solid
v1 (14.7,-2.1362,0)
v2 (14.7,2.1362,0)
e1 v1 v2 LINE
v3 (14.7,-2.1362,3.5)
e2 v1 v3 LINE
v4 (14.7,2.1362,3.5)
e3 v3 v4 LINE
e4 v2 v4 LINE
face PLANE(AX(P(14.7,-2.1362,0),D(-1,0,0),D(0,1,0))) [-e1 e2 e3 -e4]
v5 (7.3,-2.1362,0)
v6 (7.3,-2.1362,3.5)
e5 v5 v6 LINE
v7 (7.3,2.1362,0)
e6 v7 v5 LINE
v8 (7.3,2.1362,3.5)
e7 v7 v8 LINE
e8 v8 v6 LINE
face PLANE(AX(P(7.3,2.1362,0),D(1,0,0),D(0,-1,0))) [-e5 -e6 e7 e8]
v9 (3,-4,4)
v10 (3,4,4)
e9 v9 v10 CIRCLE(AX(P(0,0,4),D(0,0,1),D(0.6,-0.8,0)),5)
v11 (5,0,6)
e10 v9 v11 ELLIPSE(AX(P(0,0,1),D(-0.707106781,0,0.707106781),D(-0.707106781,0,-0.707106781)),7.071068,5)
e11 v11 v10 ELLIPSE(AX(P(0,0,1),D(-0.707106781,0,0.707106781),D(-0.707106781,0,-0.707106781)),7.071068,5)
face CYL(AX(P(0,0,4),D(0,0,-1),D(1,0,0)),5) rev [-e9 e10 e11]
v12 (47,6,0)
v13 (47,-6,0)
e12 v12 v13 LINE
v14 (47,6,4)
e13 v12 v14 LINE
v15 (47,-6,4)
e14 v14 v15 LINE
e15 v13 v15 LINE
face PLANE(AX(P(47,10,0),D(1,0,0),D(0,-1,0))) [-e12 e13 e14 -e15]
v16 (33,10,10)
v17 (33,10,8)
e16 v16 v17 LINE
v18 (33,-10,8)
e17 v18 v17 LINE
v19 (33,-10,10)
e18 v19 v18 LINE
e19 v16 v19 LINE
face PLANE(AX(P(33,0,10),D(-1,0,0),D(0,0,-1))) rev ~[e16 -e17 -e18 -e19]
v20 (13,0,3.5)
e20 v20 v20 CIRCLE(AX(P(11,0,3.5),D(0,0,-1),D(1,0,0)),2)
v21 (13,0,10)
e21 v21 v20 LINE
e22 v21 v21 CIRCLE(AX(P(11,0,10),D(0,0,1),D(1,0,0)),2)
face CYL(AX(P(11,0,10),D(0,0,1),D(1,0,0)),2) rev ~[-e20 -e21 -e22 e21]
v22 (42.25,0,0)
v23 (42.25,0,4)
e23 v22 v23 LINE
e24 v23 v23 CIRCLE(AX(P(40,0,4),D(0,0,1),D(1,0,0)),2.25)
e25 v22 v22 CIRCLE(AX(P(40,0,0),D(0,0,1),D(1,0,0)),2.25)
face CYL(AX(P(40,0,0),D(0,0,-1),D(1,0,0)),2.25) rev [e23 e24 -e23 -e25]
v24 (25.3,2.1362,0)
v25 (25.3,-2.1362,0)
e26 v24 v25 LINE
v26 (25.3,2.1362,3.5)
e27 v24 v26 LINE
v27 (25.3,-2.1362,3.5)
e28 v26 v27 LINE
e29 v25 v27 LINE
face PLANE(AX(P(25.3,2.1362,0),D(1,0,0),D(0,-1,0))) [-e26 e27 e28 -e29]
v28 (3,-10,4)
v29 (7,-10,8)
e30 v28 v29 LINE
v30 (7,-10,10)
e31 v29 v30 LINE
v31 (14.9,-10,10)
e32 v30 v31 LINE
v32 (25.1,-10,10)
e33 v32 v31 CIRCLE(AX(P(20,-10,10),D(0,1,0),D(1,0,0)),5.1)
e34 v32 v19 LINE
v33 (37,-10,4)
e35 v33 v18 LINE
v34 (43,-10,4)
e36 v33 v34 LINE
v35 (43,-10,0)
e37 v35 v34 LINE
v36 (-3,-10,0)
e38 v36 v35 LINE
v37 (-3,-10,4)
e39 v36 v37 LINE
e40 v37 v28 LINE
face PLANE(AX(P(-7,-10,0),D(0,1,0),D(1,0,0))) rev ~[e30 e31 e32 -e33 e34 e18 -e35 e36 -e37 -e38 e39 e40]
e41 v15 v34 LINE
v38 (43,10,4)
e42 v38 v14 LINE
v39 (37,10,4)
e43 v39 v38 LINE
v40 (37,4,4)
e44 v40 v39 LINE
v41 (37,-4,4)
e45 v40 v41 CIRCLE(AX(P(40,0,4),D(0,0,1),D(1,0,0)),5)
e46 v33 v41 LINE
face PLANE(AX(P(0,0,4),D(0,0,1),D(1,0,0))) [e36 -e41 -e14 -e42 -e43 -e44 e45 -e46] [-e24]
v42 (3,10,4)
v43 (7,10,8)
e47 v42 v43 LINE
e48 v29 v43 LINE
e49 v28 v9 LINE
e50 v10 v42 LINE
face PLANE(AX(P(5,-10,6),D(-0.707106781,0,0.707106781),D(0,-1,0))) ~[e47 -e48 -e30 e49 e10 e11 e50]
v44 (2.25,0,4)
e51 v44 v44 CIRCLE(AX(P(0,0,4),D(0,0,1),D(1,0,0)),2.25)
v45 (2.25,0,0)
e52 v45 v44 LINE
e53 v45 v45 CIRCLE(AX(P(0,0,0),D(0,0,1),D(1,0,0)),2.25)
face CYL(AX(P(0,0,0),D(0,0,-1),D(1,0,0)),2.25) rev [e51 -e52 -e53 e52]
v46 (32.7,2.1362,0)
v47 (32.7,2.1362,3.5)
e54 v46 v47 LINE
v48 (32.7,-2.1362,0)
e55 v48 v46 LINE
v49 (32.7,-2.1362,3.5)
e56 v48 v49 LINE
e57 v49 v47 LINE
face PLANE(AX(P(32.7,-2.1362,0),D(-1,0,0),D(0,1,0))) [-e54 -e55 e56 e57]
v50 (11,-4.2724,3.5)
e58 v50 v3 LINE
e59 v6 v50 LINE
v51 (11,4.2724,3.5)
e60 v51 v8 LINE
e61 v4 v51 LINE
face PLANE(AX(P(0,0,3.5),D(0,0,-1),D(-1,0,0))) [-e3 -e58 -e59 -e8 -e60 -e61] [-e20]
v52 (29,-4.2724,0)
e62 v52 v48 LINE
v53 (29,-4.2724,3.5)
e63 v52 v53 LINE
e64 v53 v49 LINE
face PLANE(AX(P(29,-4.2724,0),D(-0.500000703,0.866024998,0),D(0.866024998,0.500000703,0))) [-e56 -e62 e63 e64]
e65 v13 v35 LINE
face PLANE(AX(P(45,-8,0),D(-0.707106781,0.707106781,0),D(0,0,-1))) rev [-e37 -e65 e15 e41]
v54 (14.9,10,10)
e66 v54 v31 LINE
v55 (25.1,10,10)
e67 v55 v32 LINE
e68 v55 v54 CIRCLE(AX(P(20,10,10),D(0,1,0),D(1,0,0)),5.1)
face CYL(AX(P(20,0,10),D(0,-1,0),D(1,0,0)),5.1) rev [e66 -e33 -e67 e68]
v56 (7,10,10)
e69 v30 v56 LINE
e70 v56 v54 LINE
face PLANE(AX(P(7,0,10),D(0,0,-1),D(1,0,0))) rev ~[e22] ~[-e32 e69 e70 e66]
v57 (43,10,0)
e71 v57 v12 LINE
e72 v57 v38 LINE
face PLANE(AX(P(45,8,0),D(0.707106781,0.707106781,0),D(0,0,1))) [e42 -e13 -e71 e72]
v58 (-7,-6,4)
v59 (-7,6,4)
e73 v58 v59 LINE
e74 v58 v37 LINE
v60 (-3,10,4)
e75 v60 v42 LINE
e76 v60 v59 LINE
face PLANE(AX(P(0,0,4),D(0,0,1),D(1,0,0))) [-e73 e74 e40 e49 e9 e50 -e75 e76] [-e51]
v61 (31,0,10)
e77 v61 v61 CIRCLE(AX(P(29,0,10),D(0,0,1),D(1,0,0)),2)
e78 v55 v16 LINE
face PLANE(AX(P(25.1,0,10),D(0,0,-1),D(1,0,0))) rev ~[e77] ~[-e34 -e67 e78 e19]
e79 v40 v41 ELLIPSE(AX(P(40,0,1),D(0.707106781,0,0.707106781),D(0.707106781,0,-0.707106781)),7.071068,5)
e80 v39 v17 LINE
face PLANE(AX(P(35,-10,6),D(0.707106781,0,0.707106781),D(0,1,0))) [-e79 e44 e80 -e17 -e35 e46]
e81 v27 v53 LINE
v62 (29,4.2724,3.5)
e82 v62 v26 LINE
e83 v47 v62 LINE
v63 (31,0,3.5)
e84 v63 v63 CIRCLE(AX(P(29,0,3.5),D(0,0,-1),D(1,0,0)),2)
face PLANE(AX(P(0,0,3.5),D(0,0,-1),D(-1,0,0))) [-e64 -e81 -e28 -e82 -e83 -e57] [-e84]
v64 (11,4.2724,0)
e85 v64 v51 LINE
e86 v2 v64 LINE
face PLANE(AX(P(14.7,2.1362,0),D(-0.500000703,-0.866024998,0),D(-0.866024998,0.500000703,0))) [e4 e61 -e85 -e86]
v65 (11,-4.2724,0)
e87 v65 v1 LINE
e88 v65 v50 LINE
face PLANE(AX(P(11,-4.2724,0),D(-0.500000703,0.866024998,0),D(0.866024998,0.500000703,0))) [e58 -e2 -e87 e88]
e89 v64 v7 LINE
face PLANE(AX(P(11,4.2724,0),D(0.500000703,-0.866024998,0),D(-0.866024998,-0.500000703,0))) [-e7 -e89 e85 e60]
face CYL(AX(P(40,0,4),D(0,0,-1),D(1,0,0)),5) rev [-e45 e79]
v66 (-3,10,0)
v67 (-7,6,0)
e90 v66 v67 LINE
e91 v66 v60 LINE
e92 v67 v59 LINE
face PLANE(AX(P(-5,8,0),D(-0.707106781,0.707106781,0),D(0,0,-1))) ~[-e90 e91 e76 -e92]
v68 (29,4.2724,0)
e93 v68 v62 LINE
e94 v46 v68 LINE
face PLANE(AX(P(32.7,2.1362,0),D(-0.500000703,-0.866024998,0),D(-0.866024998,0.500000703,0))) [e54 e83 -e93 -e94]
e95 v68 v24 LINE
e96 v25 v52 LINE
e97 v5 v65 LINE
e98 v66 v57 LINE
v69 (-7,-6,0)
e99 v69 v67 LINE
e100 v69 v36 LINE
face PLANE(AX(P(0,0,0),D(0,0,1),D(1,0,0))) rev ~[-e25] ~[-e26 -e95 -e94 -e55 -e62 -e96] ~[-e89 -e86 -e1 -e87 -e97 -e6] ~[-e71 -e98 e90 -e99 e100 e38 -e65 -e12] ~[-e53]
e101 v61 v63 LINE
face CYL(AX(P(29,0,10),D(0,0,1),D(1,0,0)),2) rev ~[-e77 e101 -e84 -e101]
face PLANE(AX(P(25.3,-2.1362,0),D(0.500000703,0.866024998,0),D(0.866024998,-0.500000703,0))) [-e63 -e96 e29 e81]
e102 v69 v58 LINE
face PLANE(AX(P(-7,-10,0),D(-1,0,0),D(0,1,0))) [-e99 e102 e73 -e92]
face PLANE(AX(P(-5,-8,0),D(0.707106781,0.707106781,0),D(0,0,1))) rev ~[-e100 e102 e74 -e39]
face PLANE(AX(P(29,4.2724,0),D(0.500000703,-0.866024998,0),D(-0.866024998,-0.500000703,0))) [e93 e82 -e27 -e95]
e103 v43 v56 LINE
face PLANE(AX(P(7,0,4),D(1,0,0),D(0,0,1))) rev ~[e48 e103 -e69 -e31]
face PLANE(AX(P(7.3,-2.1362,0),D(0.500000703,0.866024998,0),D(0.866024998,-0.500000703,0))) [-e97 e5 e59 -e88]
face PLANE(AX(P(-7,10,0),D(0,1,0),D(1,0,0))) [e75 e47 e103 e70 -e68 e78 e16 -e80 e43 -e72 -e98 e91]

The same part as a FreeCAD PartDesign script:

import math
import FreeCAD as App
import Part
import Sketcher

V = App.Vector
Q = App.Units.Quantity


def edges_at(feature, points):
    """Names of the edges that pass closest to the given points."""
    edges = feature.Shape.Edges
    near = lambda p: min(range(len(edges)), key=lambda i: edges[i].distToShape(Part.Vertex(*p))[0])
    return sorted({f"Edge{near(p) + 1}" for p in points})

doc = App.newDocument("Part")
body = doc.addObject("PartDesign::Body", "Body")

# Sketch on XY plane
sketch1 = body.newObject("Sketcher::SketchObject", "Sketch")
sketch1.AttachmentSupport = (doc.getObject("XY_Plane"), [""])
sketch1.MapMode = "FlatFace"
sketch1.addGeometry([
    Part.LineSegment(V(47, 10, 0), V(-7, 10, 0)),  # 0
    Part.LineSegment(V(-7, 10, 0), V(-7, -10, 0)),  # 1
    Part.LineSegment(V(-7, -10, 0), V(47, -10, 0)),  # 2
    Part.LineSegment(V(47, -10, 0), V(47, 10, 0)),  # 3
    Part.Circle(V(0, 0, 0), V(0, 0, 1), 2.25),  # 4
    Part.Circle(V(40, 0, 0), V(0, 0, 1), 2.25),  # 5
], False)
sketch1.addConstraint([
    Sketcher.Constraint("Coincident", 0, 2, 1, 1),
    Sketcher.Constraint("Coincident", 1, 2, 2, 1),
    Sketcher.Constraint("Coincident", 2, 2, 3, 1),
    Sketcher.Constraint("Coincident", 3, 2, 0, 1),
    Sketcher.Constraint("Horizontal", 0),
    Sketcher.Constraint("Vertical", 1),
    Sketcher.Constraint("Horizontal", 2),
    Sketcher.Constraint("Vertical", 3),
    Sketcher.Constraint("Coincident", 4, 3, -1, 1),
    Sketcher.Constraint("Equal", 4, 5),
    Sketcher.Constraint("PointOnObject", 5, 3, -1),
    Sketcher.Constraint("Diameter", 4, Q("4.5 mm")),
    Sketcher.Constraint("DistanceY", 1, 2, 1, 1, Q("20 mm")),
    Sketcher.Constraint("DistanceX", -1, 1, 5, 3, Q("40 mm")),
    Sketcher.Constraint("DistanceX", 0, 2, -1, 1, Q("7 mm")),
    Sketcher.Constraint("DistanceY", -1, 1, 0, 2, Q("10 mm")),
    Sketcher.Constraint("DistanceX", 5, 3, 2, 2, Q("7 mm")),
])
pad1 = body.newObject("PartDesign::Pad", "Pad")
pad1.Profile = sketch1
pad1.Length = 4

# Sketch on XZ plane
sketch2 = body.newObject("Sketcher::SketchObject", "Sketch001")
sketch2.AttachmentSupport = (doc.getObject("XZ_Plane"), [""])
sketch2.MapMode = "FlatFace"
sketch2.addGeometry([
    Part.LineSegment(V(33, 10, 0), V(33, 4, 0)),  # 0
    Part.LineSegment(V(33, 4, 0), V(7, 4, 0)),  # 1
    Part.LineSegment(V(7, 4, 0), V(7, 10, 0)),  # 2
    Part.LineSegment(V(7, 10, 0), V(14.9, 10, 0)),  # 3
    Part.ArcOfCircle(Part.Circle(V(20, 10, 0), V(0, 0, 1), 5.1), math.radians(180), math.radians(360)),  # 4
    Part.LineSegment(V(25.1, 10, 0), V(33, 10, 0)),  # 5
], False)
sketch2.addConstraint([
    Sketcher.Constraint("Coincident", 0, 2, 1, 1),
    Sketcher.Constraint("Coincident", 1, 2, 2, 1),
    Sketcher.Constraint("Coincident", 2, 2, 3, 1),
    Sketcher.Constraint("Coincident", 3, 2, 4, 1),
    Sketcher.Constraint("Coincident", 4, 2, 5, 1),
    Sketcher.Constraint("Coincident", 5, 2, 0, 1),
    Sketcher.Constraint("Vertical", 0),
    Sketcher.Constraint("Horizontal", 1),
    Sketcher.Constraint("Vertical", 2),
    Sketcher.Constraint("Horizontal", 3),
    Sketcher.Constraint("Horizontal", 5),
    Sketcher.Constraint("Horizontal", 4, 3, 2, 2),
    Sketcher.Constraint("Horizontal", 3, 2, 4, 2),
    Sketcher.Constraint("Equal", 3, 5),
    Sketcher.Constraint("Radius", 4, Q("5.1 mm")),
    Sketcher.Constraint("DistanceX", 1, 2, 1, 1, Q("26 mm")),
    Sketcher.Constraint("DistanceY", 0, 2, 0, 1, Q("6 mm")),
    Sketcher.Constraint("DistanceX", -1, 1, 4, 3, Q("20 mm")),
    Sketcher.Constraint("DistanceY", -1, 1, 4, 3, Q("10 mm")),
])
pad2 = body.newObject("PartDesign::Pad", "Pad001")
pad2.Profile = sketch2
pad2.Length = 20
pad2.Midplane = True
doc.recompute()

chamfer = body.newObject("PartDesign::Chamfer", "Chamfer")
chamfer.Base = (pad2, edges_at(pad2, [(7, 0, 4), (33, 0, 4)]))
chamfer.Size = 4

# Sketch on XY plane
sketch3 = body.newObject("Sketcher::SketchObject", "Sketch002")
sketch3.AttachmentSupport = (doc.getObject("XY_Plane"), [""])
sketch3.MapMode = "FlatFace"
sketch3.AttachmentOffset = App.Placement(V(0, 0, 4), App.Rotation())
sketch3.addGeometry([
    Part.Circle(V(0, 0, 0), V(0, 0, 1), 5),
    Part.Circle(V(40, 0, 0), V(0, 0, 1), 5),
    Part.Circle(V(40, 0, 0), V(0, 0, 1), 2.25),
], False)
sketch3.addConstraint([
    Sketcher.Constraint("Coincident", 0, 3, -1, 1),
    Sketcher.Constraint("Coincident", 2, 3, 1, 3),
    Sketcher.Constraint("Equal", 0, 1),
    Sketcher.Constraint("PointOnObject", 1, 3, -1),
    Sketcher.Constraint("Diameter", 0, Q("10 mm")),
    Sketcher.Constraint("Diameter", 2, Q("4.5 mm")),
    Sketcher.Constraint("DistanceX", -1, 1, 1, 3, Q("40 mm")),
])
pocket1 = body.newObject("PartDesign::Pocket", "Pocket")
pocket1.Profile = sketch3
pocket1.Length = 6
pocket1.Reversed = True

# Sketch on XY plane
sketch4 = body.newObject("Sketcher::SketchObject", "Sketch003")
sketch4.AttachmentSupport = (doc.getObject("XY_Plane"), [""])
sketch4.MapMode = "FlatFace"
sketch4.AttachmentOffset = App.Placement(V(0, 0, 10), App.Rotation())
sketch4.addGeometry([
    Part.Circle(V(11, 0, 0), V(0, 0, 1), 2),
    Part.Circle(V(29, 0, 0), V(0, 0, 1), 2),
], False)
sketch4.addConstraint([
    Sketcher.Constraint("Equal", 0, 1),
    Sketcher.Constraint("PointOnObject", 0, 3, -1),
    Sketcher.Constraint("PointOnObject", 1, 3, -1),
    Sketcher.Constraint("Diameter", 0, Q("4 mm")),
    Sketcher.Constraint("DistanceX", 0, 3, 1, 3, Q("18 mm")),
    Sketcher.Constraint("DistanceX", -1, 1, 0, 3, Q("11 mm")),
])
pocket2 = body.newObject("PartDesign::Pocket", "Pocket001")
pocket2.Profile = sketch4
pocket2.Length = 10

# Sketch on XY plane
sketch5 = body.newObject("Sketcher::SketchObject", "Sketch004")
sketch5.AttachmentSupport = (doc.getObject("XY_Plane"), [""])
sketch5.MapMode = "FlatFace"
sketch5.addGeometry([
    Part.LineSegment(V(25.3, 2.1362, 0), V(29, 4.2724, 0)),  # 0
    Part.LineSegment(V(29, 4.2724, 0), V(32.7, 2.1362, 0)),  # 1
    Part.LineSegment(V(32.7, 2.1362, 0), V(32.7, -2.1362, 0)),  # 2
    Part.LineSegment(V(32.7, -2.1362, 0), V(29, -4.2724, 0)),  # 3
    Part.LineSegment(V(29, -4.2724, 0), V(25.3, -2.1362, 0)),  # 4
    Part.LineSegment(V(25.3, -2.1362, 0), V(25.3, 2.1362, 0)),  # 5
    Part.Circle(V(29, 0, 0), V(0, 0, 1), 2),  # 6
    Part.LineSegment(V(7.3, 2.1362, 0), V(11, 4.2724, 0)),  # 7
    Part.LineSegment(V(11, 4.2724, 0), V(14.7, 2.1362, 0)),  # 8
    Part.LineSegment(V(14.7, 2.1362, 0), V(14.7, -2.1362, 0)),  # 9
    Part.LineSegment(V(14.7, -2.1362, 0), V(11, -4.2724, 0)),  # 10
    Part.LineSegment(V(11, -4.2724, 0), V(7.3, -2.1362, 0)),  # 11
    Part.LineSegment(V(7.3, -2.1362, 0), V(7.3, 2.1362, 0)),  # 12
    Part.Circle(V(11, 0, 0), V(0, 0, 1), 2),  # 13
], False)
sketch5.addConstraint([
    Sketcher.Constraint("Coincident", 0, 2, 1, 1),
    Sketcher.Constraint("Coincident", 1, 2, 2, 1),
    Sketcher.Constraint("Coincident", 2, 2, 3, 1),
    Sketcher.Constraint("Coincident", 3, 2, 4, 1),
    Sketcher.Constraint("Coincident", 4, 2, 5, 1),
    Sketcher.Constraint("Coincident", 5, 2, 0, 1),
    Sketcher.Constraint("Coincident", 7, 2, 8, 1),
    Sketcher.Constraint("Coincident", 8, 2, 9, 1),
    Sketcher.Constraint("Coincident", 9, 2, 10, 1),
    Sketcher.Constraint("Coincident", 10, 2, 11, 1),
    Sketcher.Constraint("Coincident", 11, 2, 12, 1),
    Sketcher.Constraint("Coincident", 12, 2, 7, 1),
    Sketcher.Constraint("Vertical", 2),
    Sketcher.Constraint("Vertical", 5),
    Sketcher.Constraint("Vertical", 9),
    Sketcher.Constraint("Vertical", 12),
    Sketcher.Constraint("Equal", 6, 13),
    Sketcher.Constraint("Symmetric", 0, 2, 3, 2, -1),
    Sketcher.Constraint("Symmetric", 7, 2, 10, 2, -1),
    Sketcher.Constraint("PointOnObject", 6, 3, -1),
    Sketcher.Constraint("PointOnObject", 13, 3, -1),
    Sketcher.Constraint("Parallel", 0, 3),
    Sketcher.Constraint("Parallel", 1, 4),
    Sketcher.Constraint("Parallel", 3, 7),
    Sketcher.Constraint("Parallel", 4, 8),
    Sketcher.Constraint("Parallel", 7, 10),
    Sketcher.Constraint("Parallel", 8, 11),
    Sketcher.Constraint("Horizontal", 2, 2, 4, 2),
    Sketcher.Constraint("Horizontal", 1, 2, 5, 2),
    Sketcher.Constraint("Horizontal", 0, 2, 7, 2),
    Sketcher.Constraint("Horizontal", 5, 2, 8, 2),
    Sketcher.Constraint("Horizontal", 9, 2, 11, 2),
    Sketcher.Constraint("Vertical", 6, 3, 0, 2),
    Sketcher.Constraint("Vertical", 13, 3, 7, 2),
    Sketcher.Constraint("Diameter", 6, Q("4 mm")),
    Sketcher.Constraint("DistanceX", 4, 2, 2, 2, Q("7.4 mm")),
    Sketcher.Constraint("Angle", 0, Q("30 deg")),
    Sketcher.Constraint("DistanceX", -1, 1, 6, 3, Q("29 mm")),
    Sketcher.Constraint("DistanceX", -1, 1, 13, 3, Q("11 mm")),
    Sketcher.Constraint("DistanceY", 2, 2, 2, 1, Q("4.2724 mm")),
])
pocket3 = body.newObject("PartDesign::Pocket", "Pocket002")
pocket3.Profile = sketch5
pocket3.Length = 3.5
pocket3.Reversed = True
doc.recompute()

chamfer2 = body.newObject("PartDesign::Chamfer", "Chamfer001")
chamfer2.Base = (pocket3, edges_at(pocket3, [
    (-7, 10, 2),
    (-7, -10, 2),
    (47, 10, 2),
    (47, -10, 2),
]))
chamfer2.Size = 4

doc.recompute()
